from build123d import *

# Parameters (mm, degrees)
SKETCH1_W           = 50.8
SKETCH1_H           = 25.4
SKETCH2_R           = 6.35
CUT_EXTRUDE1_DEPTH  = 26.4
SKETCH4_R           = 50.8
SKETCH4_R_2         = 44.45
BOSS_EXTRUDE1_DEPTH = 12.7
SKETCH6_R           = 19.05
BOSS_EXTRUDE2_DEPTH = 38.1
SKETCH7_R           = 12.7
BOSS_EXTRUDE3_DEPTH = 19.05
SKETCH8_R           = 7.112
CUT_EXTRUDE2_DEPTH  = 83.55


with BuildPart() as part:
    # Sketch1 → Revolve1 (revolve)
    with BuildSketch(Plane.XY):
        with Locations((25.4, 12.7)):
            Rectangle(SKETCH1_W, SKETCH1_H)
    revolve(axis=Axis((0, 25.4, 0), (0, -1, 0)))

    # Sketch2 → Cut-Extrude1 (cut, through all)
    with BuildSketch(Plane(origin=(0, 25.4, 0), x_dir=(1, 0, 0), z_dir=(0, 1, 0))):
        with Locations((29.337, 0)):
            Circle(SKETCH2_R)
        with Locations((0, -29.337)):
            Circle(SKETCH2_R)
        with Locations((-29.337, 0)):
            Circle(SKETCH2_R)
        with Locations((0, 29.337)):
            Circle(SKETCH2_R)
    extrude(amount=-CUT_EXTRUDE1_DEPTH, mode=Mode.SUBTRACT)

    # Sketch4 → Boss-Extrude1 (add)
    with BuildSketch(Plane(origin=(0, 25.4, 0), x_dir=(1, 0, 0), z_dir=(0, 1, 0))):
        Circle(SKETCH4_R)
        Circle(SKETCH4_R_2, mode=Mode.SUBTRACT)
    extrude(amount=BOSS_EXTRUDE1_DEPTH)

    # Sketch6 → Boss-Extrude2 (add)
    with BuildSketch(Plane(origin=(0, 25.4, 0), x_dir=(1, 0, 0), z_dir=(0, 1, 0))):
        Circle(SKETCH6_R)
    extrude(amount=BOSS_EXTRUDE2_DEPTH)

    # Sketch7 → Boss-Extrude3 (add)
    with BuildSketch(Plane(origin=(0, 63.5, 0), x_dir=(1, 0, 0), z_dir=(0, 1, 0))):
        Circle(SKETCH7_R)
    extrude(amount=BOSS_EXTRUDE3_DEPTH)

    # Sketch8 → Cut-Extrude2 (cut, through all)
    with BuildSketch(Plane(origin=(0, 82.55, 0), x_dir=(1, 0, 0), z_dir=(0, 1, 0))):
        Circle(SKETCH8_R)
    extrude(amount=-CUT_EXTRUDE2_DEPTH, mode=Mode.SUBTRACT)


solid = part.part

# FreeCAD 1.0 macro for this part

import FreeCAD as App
import Part
import Sketcher
Q = App.Units.Quantity

doc = App.newDocument("Part")
body = doc.addObject("PartDesign::Body", "Body")

# Sketch on XY plane
sketch1 = body.newObject("Sketcher::SketchObject", "Sketch")
sketch1.AttachmentSupport = (doc.getObject("XY_Plane"), [""])
sketch1.MapMode = "FlatFace"
sketch1.addGeometry([
    Part.LineSegment(App.Vector(0, 25, 0), App.Vector(0, 0, 0)),
    Part.LineSegment(App.Vector(0, 0, 0), App.Vector(51, 0, 0)),
    Part.LineSegment(App.Vector(51, 0, 0), App.Vector(51, 25, 0)),
    Part.LineSegment(App.Vector(51, 25, 0), App.Vector(0, 25, 0)),
], False)
sketch1.addConstraint([
    Sketcher.Constraint("Coincident", 0, 2, 1, 1),
    Sketcher.Constraint("Coincident", 1, 2, 2, 1),
    Sketcher.Constraint("Coincident", 2, 2, 3, 1),
    Sketcher.Constraint("Coincident", 3, 2, 0, 1),
    Sketcher.Constraint("Vertical", 0),
    Sketcher.Constraint("Horizontal", 1),
    Sketcher.Constraint("Vertical", 2),
    Sketcher.Constraint("Horizontal", 3),
    Sketcher.Constraint("Coincident", 0, 2, -1, 1),
    Sketcher.Constraint("DistanceX", 1, 1, 1, 2, Q("2 in")),
    Sketcher.Constraint("DistanceY", 0, 2, 0, 1, Q("1 in")),
])
revolution = body.newObject("PartDesign::Revolution", "Revolution")
revolution.Profile = sketch1
revolution.ReferenceAxis = (sketch1, ["V_Axis"])
revolution.Angle = 360

# Sketch on XZ plane
sketch2 = body.newObject("Sketcher::SketchObject", "Sketch001")
sketch2.AttachmentSupport = (doc.getObject("XZ_Plane"), [""])
sketch2.MapMode = "FlatFace"
sketch2.AttachmentOffset = App.Placement(App.Vector(0, 0, -1 * 25.4), App.Rotation())
sketch2.addGeometry([
    Part.Circle(App.Vector(29, 0, 0), App.Vector(0, 0, 1), 6),
    Part.Circle(App.Vector(0, 29, 0), App.Vector(0, 0, 1), 6),
    Part.Circle(App.Vector(-29, 0, 0), App.Vector(0, 0, 1), 6),
    Part.Circle(App.Vector(0, -29, 0), App.Vector(0, 0, 1), 6),
], False)
sketch2.addConstraint([
    Sketcher.Constraint("Equal", 0, 1),
    Sketcher.Constraint("Equal", 1, 2),
    Sketcher.Constraint("Equal", 2, 3),
    Sketcher.Constraint("Symmetric", 0, 3, 2, 3, -1, 1),
    Sketcher.Constraint("Symmetric", 1, 3, 3, 3, -1, 1),
    Sketcher.Constraint("PointOnObject", 0, 3, -1),
    Sketcher.Constraint("PointOnObject", 1, 3, -2),
    Sketcher.Constraint("Diameter", 0, Q("0.5 in")),
    Sketcher.Constraint("DistanceX", 2, 3, 0, 3, Q("2.31 in")),
    Sketcher.Constraint("DistanceY", 3, 3, 1, 3, Q("2.31 in")),
])
pocket1 = body.newObject("PartDesign::Pocket", "Pocket")
pocket1.Profile = sketch2
pocket1.Type = "ThroughAll"
pocket1.Reversed = True

# Sketch on XZ plane
sketch3 = body.newObject("Sketcher::SketchObject", "Sketch002")
sketch3.AttachmentSupport = (doc.getObject("XZ_Plane"), [""])
sketch3.MapMode = "FlatFace"
sketch3.AttachmentOffset = App.Placement(App.Vector(0, 0, -1 * 25.4), App.Rotation())
sketch3.addGeometry([
    Part.Circle(App.Vector(0, 0, 0), App.Vector(0, 0, 1), 51),
    Part.Circle(App.Vector(0, 0, 0), App.Vector(0, 0, 1), 44),
], False)
sketch3.addConstraint([
    Sketcher.Constraint("Coincident", 0, 3, -1, 1),
    Sketcher.Constraint("Coincident", 1, 3, -1, 1),
    Sketcher.Constraint("Diameter", 0, Q("4 in")),
    Sketcher.Constraint("Diameter", 1, Q("3.5 in")),
])
pad1 = body.newObject("PartDesign::Pad", "Pad")
pad1.Profile = sketch3
pad1.Length = Q("0.5 in")
pad1.Reversed = True

# Sketch on XZ plane
sketch4 = body.newObject("Sketcher::SketchObject", "Sketch003")
sketch4.AttachmentSupport = (doc.getObject("XZ_Plane"), [""])
sketch4.MapMode = "FlatFace"
sketch4.AttachmentOffset = App.Placement(App.Vector(0, 0, -1 * 25.4), App.Rotation())
sketch4.addGeometry(Part.Circle(App.Vector(0, 0, 0), App.Vector(0, 0, 1), 19), False)
sketch4.addConstraint([
    Sketcher.Constraint("Coincident", 0, 3, -1, 1),
    Sketcher.Constraint("Diameter", 0, Q("1.5 in")),
])
pad2 = body.newObject("PartDesign::Pad", "Pad001")
pad2.Profile = sketch4
pad2.Length = Q("1.5 in")
pad2.Reversed = True

# Sketch on XZ plane
sketch5 = body.newObject("Sketcher::SketchObject", "Sketch004")
sketch5.AttachmentSupport = (doc.getObject("XZ_Plane"), [""])
sketch5.MapMode = "FlatFace"
sketch5.AttachmentOffset = App.Placement(App.Vector(0, 0, -2.5 * 25.4), App.Rotation())
sketch5.addGeometry(Part.Circle(App.Vector(0, 0, 0), App.Vector(0, 0, 1), 13), False)
sketch5.addConstraint([
    Sketcher.Constraint("Coincident", 0, 3, -1, 1),
    Sketcher.Constraint("Diameter", 0, Q("1 in")),
])
pad3 = body.newObject("PartDesign::Pad", "Pad002")
pad3.Profile = sketch5
pad3.Length = Q("0.75 in")
pad3.Reversed = True

# Sketch on XZ plane
sketch6 = body.newObject("Sketcher::SketchObject", "Sketch005")
sketch6.AttachmentSupport = (doc.getObject("XZ_Plane"), [""])
sketch6.MapMode = "FlatFace"
sketch6.AttachmentOffset = App.Placement(App.Vector(0, 0, -3.25 * 25.4), App.Rotation())
sketch6.addGeometry(Part.Circle(App.Vector(0, 0, 0), App.Vector(0, 0, 1), 7), False)
sketch6.addConstraint([
    Sketcher.Constraint("Coincident", 0, 3, -1, 1),
    Sketcher.Constraint("Diameter", 0, Q("0.56 in")),
])
pocket2 = body.newObject("PartDesign::Pocket", "Pocket001")
pocket2.Profile = sketch6
pocket2.Type = "ThroughAll"
pocket2.Reversed = True

doc.recompute()
